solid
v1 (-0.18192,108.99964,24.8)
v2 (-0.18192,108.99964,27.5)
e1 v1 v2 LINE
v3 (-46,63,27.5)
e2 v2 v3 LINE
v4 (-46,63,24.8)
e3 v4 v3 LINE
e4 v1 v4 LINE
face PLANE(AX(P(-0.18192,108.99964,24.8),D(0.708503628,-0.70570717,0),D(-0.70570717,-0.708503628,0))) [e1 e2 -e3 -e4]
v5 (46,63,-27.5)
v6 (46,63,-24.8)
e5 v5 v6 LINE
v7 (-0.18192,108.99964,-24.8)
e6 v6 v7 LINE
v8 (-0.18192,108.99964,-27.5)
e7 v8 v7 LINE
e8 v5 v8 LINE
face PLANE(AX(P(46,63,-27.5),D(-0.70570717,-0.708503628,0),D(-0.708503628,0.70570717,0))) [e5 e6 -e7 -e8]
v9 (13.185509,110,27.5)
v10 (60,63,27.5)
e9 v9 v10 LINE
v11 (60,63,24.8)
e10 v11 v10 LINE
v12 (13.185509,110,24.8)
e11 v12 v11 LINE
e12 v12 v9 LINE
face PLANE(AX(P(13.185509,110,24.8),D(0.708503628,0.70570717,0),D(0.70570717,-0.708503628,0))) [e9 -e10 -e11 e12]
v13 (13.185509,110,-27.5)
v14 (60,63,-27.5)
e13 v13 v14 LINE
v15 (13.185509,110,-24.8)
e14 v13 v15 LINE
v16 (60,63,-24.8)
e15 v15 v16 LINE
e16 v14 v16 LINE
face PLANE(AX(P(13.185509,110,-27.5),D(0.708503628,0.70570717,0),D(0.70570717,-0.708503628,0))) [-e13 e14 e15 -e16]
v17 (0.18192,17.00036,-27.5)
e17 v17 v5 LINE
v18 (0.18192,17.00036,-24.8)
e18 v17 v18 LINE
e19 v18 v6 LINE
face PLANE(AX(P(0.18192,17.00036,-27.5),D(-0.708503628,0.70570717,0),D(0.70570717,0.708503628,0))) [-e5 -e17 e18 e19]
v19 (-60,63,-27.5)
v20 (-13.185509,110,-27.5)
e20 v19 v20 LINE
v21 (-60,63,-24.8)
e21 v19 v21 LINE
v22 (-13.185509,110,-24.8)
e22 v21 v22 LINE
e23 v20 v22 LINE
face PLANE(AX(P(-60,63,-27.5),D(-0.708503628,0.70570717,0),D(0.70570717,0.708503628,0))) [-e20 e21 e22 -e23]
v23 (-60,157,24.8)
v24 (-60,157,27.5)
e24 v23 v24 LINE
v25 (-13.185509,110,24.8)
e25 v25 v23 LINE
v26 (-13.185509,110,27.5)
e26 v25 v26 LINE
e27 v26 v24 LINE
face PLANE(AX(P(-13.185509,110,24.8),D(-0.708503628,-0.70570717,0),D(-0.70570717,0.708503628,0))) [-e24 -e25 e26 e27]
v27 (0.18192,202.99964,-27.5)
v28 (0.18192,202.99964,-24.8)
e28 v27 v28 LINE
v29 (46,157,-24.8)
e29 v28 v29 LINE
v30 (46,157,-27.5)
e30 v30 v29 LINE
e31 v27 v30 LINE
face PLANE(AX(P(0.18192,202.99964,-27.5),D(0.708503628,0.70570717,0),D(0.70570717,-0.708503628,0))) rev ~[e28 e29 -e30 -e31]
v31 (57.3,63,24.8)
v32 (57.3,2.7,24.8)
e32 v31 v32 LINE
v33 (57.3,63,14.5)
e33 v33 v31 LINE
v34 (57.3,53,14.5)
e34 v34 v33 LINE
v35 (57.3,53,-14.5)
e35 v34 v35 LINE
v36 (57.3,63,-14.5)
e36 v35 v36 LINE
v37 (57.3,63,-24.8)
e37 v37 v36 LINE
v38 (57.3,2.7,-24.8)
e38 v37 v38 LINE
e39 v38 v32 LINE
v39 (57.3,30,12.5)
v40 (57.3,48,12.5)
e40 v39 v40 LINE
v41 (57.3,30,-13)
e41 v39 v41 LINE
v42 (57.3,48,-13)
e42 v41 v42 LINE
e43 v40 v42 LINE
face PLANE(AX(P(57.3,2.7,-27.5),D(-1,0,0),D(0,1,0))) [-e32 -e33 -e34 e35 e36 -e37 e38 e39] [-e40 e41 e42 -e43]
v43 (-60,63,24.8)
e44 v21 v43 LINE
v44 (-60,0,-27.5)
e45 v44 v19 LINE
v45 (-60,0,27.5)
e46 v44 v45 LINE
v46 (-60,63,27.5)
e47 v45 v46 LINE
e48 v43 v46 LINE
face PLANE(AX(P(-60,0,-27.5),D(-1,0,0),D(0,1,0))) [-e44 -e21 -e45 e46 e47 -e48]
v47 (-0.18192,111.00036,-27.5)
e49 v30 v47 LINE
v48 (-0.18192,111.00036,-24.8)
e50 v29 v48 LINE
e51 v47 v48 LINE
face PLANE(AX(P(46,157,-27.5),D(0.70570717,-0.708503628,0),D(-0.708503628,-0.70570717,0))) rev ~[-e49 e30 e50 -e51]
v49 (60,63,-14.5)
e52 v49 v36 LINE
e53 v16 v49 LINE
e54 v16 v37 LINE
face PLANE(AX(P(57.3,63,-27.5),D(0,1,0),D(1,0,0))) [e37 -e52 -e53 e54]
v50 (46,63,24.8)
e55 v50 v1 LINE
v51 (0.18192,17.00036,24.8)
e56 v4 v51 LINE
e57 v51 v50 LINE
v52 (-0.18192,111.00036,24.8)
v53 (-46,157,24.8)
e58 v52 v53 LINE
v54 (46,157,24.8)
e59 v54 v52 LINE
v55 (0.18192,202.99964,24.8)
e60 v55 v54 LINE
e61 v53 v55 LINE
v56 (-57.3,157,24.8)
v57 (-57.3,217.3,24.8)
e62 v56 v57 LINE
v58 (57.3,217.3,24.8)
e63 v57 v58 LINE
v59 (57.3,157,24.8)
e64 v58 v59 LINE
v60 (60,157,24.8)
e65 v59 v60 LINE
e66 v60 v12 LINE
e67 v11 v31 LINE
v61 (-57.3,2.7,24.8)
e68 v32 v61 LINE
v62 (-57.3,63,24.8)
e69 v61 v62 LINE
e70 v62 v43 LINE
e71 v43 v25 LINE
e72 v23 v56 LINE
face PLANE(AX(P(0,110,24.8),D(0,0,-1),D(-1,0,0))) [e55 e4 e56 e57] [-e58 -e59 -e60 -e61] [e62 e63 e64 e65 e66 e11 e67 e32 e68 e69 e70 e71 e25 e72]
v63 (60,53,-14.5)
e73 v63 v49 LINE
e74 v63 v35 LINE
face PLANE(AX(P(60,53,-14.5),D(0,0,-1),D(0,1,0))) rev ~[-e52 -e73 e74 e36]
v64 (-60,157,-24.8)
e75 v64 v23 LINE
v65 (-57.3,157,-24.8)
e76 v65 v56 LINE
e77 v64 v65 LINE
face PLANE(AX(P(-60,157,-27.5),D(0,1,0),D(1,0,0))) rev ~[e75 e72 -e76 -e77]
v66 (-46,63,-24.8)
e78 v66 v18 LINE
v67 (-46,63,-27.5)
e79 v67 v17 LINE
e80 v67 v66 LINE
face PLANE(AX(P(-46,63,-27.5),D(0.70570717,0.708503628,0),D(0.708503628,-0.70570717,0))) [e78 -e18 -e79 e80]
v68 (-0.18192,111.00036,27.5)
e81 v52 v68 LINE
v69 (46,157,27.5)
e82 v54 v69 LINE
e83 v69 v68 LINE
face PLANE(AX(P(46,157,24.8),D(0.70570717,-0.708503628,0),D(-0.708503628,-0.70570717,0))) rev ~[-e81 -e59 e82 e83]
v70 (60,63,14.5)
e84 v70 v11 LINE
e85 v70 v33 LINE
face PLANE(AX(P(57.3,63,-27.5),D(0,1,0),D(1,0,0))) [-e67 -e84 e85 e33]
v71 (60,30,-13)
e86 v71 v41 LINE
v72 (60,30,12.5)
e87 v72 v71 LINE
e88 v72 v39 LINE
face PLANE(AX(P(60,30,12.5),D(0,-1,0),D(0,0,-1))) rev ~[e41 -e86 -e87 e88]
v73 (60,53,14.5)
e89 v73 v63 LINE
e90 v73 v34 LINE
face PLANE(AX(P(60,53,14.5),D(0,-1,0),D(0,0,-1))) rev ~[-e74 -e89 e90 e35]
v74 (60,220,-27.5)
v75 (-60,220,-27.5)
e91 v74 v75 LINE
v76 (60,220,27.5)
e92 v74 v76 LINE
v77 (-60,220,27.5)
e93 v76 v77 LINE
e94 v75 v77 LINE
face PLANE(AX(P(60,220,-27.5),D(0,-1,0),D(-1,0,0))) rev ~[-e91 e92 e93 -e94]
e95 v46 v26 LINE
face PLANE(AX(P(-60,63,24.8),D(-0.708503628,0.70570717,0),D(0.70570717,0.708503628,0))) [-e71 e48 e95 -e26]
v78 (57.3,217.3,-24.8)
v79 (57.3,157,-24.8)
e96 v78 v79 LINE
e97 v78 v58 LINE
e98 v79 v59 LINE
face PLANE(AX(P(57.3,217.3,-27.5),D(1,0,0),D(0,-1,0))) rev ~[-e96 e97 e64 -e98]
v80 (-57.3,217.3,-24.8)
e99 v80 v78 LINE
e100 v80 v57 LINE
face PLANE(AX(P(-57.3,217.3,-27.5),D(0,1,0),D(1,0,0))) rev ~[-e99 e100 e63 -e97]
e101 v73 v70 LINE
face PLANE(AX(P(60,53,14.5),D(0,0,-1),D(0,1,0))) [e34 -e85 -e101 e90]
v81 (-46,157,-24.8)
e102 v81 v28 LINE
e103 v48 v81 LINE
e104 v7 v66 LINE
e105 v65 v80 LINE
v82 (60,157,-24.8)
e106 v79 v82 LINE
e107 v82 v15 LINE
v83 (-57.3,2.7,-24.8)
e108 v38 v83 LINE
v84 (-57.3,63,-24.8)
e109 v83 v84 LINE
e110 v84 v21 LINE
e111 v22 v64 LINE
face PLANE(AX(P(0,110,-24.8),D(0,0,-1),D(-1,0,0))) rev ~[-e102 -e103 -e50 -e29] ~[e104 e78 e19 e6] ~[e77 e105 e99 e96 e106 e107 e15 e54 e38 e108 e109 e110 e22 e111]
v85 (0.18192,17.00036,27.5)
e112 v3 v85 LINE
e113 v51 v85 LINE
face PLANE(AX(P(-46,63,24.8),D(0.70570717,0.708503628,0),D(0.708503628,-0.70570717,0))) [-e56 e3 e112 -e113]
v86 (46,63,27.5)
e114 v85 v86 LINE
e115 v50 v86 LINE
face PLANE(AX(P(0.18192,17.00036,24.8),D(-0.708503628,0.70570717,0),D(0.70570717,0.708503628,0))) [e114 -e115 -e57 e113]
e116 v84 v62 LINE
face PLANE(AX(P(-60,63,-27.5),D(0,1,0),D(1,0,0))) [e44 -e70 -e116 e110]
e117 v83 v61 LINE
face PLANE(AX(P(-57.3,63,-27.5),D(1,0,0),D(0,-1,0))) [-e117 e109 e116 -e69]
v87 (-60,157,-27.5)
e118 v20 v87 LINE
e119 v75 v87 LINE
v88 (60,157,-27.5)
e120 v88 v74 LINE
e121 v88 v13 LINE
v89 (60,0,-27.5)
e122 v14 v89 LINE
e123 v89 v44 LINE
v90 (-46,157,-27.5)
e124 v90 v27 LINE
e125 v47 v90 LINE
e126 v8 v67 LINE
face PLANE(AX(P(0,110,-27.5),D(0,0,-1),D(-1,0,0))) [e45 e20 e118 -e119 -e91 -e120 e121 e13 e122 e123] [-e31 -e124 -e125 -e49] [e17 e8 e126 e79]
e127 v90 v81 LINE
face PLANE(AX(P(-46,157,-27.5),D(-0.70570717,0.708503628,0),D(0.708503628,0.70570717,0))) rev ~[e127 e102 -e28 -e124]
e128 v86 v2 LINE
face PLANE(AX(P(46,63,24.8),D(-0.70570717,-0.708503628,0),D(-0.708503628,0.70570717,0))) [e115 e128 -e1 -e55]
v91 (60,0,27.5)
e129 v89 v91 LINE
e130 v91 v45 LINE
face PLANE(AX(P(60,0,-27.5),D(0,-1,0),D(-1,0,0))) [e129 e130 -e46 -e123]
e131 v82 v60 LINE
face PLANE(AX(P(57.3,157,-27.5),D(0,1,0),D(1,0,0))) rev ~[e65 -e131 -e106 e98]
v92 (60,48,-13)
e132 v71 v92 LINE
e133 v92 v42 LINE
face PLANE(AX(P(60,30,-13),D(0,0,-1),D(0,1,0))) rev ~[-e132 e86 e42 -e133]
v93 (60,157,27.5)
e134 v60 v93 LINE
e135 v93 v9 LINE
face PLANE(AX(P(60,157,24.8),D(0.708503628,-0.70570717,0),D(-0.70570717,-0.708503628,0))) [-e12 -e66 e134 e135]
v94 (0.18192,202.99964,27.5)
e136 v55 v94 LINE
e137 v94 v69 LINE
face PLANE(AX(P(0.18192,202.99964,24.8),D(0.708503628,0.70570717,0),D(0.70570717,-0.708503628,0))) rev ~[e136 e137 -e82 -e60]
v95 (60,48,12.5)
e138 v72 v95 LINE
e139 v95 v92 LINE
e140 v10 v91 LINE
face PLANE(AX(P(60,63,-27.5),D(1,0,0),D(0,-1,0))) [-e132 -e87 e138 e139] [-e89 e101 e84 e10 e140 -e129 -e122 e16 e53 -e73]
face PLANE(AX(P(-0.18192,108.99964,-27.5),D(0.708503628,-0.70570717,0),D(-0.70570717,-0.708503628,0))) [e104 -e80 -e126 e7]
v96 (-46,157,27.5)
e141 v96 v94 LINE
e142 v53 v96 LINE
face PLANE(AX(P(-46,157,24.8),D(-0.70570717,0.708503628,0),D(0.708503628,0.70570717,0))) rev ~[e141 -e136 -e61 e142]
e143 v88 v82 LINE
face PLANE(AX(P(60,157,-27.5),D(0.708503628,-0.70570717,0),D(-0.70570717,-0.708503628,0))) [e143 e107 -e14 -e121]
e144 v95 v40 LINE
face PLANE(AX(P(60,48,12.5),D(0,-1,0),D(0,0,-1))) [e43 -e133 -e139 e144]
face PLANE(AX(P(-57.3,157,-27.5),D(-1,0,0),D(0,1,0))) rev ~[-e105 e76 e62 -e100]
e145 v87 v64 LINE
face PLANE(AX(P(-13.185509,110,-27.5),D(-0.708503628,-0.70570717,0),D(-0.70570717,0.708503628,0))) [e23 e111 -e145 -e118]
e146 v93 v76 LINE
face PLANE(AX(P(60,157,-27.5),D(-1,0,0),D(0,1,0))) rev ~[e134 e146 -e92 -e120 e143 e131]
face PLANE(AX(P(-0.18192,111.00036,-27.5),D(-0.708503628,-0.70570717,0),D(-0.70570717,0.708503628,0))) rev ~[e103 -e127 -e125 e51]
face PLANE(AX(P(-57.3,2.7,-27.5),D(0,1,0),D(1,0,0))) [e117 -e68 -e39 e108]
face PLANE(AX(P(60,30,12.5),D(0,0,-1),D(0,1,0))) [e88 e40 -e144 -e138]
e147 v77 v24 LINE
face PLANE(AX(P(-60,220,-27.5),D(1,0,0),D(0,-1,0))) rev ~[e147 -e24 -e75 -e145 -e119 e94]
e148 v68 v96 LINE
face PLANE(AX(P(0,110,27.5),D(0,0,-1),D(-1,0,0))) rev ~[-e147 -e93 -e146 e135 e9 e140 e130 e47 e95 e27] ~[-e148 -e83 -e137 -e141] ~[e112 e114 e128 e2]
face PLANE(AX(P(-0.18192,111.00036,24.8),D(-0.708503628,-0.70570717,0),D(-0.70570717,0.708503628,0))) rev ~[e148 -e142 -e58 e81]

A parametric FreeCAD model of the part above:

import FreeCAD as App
import Part
import Sketcher

V = App.Vector


def add_polygon(sketch, points):
    """Adds a closed chain of lines whose ends are joined by coincident constraints."""
    first, n = sketch.GeometryCount, len(points)
    for a, b in zip(points, points[1:] + points[:1]):
        sketch.addGeometry(Part.LineSegment(App.Vector(*a, 0), App.Vector(*b, 0)), False)
    for i in range(n):
        sketch.addConstraint(Sketcher.Constraint("Coincident", first + i, 2, first + (i + 1) % n, 1))

doc = App.newDocument("Part")
params = doc.addObject("Spreadsheet::Sheet", "Params")
for row, (alias, value) in enumerate([
    ("sketch1_width", "120 mm"),
    ("sketch1_height", "63 mm"),
    ("sketch1_width2", "2.7 mm"),
    ("sketch1_height2", "60.3 mm"),
    ("pad1_length", "55 mm"),
    ("sketch2_width", "120 mm"),
    ("sketch2_height", "63 mm"),
    ("sketch2_width2", "2.7 mm"),
    ("sketch2_height2", "60.3 mm"),
    ("pad2_length", "55 mm"),
    ("sketch3_width", "2.7 mm"),
    ("sketch3_width2", "114.6 mm"),
    ("sketch3_height", "60.3 mm"),
    ("pad3_length", "2.7 mm"),
    ("sketch4_width", "2.7 mm"),
    ("sketch4_width2", "114.6 mm"),
    ("sketch4_height", "60.3 mm"),
    ("pad4_length", "2.7 mm"),
    ("sketch5_width", "18 mm"),
    ("sketch5_width2", "10 mm"),
    ("sketch5_height", "29 mm"),
    ("sketch5_height2", "25.5 mm"),
    ("pocket1_length", "2.7 mm"),
], start=1):
    params.set(f"A{row}", alias)
    params.set(f"B{row}", "=" + value)
    params.setAlias(f"B{row}", alias)

body = doc.addObject("PartDesign::Body", "Body")

# Sketch on XY plane
sketch1 = doc.addObject("Sketcher::SketchObject", "Sketch")
body.addObject(sketch1)
sketch1.AttachmentSupport = (doc.XY_Plane, [""])
sketch1.MapMode = "FlatFace"
sketch1.AttachmentOffset = App.Placement(V(0, 0, -27.5), App.Rotation())
add_polygon(sketch1, [(57.3, 217.3), (57.3, 157), (60, 157), (60, 220), (-60, 220), (-60, 157), (-57.3, 157), (-57.3, 217.3)])  # lines 0-7
sketch1.addConstraint([
    Sketcher.Constraint("Vertical", 0),
    Sketcher.Constraint("Horizontal", 1),
    Sketcher.Constraint("Vertical", 2),
    Sketcher.Constraint("Horizontal", 3),
    Sketcher.Constraint("Vertical", 4),
    Sketcher.Constraint("Horizontal", 5),
    Sketcher.Constraint("Vertical", 6),
    Sketcher.Constraint("Horizontal", 7),
    Sketcher.Constraint("Symmetric", 1, 2, 4, 2, -2),
    Sketcher.Constraint("Equal", 1, 5),
    Sketcher.Constraint("DistanceX", 3, 2, 3, 1, 120.0),
    Sketcher.Constraint("DistanceY", 2, 1, 2, 2, 63.0),
    Sketcher.Constraint("DistanceX", 1, 1, 1, 2, 2.7),
    Sketcher.Constraint("DistanceY", 0, 2, 0, 1, 60.3),
    Sketcher.Constraint("DistanceY", -1, 1, 0, 2, 157.0),
])
sketch1.setExpression("Constraints[18]", "Params.sketch1_width")
sketch1.setExpression("Constraints[19]", "Params.sketch1_height")
sketch1.setExpression("Constraints[20]", "Params.sketch1_width2")
sketch1.setExpression("Constraints[21]", "Params.sketch1_height2")
pad1 = doc.addObject("PartDesign::Pad", "Pad")
body.addObject(pad1)
pad1.Profile = sketch1
pad1.setExpression("Length", "Params.pad1_length")
body2 = doc.addObject("PartDesign::Body", "Body001")

# Sketch on XY plane
sketch2 = doc.addObject("Sketcher::SketchObject", "Sketch001")
body2.addObject(sketch2)
sketch2.AttachmentSupport = (doc.getObject("XY_Plane001"), [""])
sketch2.MapMode = "FlatFace"
sketch2.AttachmentOffset = App.Placement(V(0, 0, -27.5), App.Rotation())
add_polygon(sketch2, [(60, 63), (57.3, 63), (57.3, 2.7), (-57.3, 2.7), (-57.3, 63), (-60, 63), (-60, 0), (60, 0)])  # lines 0-7
sketch2.addConstraint([
    Sketcher.Constraint("Horizontal", 0),
    Sketcher.Constraint("Vertical", 1),
    Sketcher.Constraint("Horizontal", 2),
    Sketcher.Constraint("Vertical", 3),
    Sketcher.Constraint("Horizontal", 4),
    Sketcher.Constraint("Vertical", 5),
    Sketcher.Constraint("Horizontal", 6),
    Sketcher.Constraint("Vertical", 7),
    Sketcher.Constraint("Symmetric", 5, 2, 6, 2, -1, 1),
    Sketcher.Constraint("Symmetric", 0, 2, 3, 2, -2),
    Sketcher.Constraint("DistanceX", 6, 1, 6, 2, 120.0),
    Sketcher.Constraint("DistanceY", 5, 2, 5, 1, 63.0),
    Sketcher.Constraint("DistanceX", 0, 2, 0, 1, 2.7),
    Sketcher.Constraint("DistanceY", 1, 2, 1, 1, 60.3),
])
sketch2.setExpression("Constraints[18]", "Params.sketch2_width")
sketch2.setExpression("Constraints[19]", "Params.sketch2_height")
sketch2.setExpression("Constraints[20]", "Params.sketch2_width2")
sketch2.setExpression("Constraints[21]", "Params.sketch2_height2")
pad2 = doc.addObject("PartDesign::Pad", "Pad001")
body2.addObject(pad2)
pad2.Profile = sketch2
pad2.setExpression("Length", "Params.pad2_length")
body.AllowCompound = True
doc.recompute()

boolean = doc.addObject("PartDesign::Boolean", "Boolean")
body.addObject(boolean)
boolean.Type = "Fuse"
boolean.addObjects([body2])

# Sketch on XY plane
sketch3 = doc.addObject("Sketcher::SketchObject", "Sketch002")
body.addObject(sketch3)
sketch3.AttachmentSupport = (doc.XY_Plane, [""])
sketch3.MapMode = "FlatFace"
sketch3.AttachmentOffset = App.Placement(V(0, 0, -27.5), App.Rotation())
add_polygon(sketch3, [(60, 157), (57.3, 157), (57.3, 217.3), (-57.3, 217.3), (-57.3, 157), (-60, 157), (-13.185509, 110), (-60, 63), (-57.3, 63), (-57.3, 2.7), (57.3, 2.7), (57.3, 63), (60, 63), (13.185509, 110)])  # lines 0-13
add_polygon(sketch3, [(46, 63), (0.18192, 17.00036), (-46, 63), (-0.18192, 108.99964)])  # lines 14-17
add_polygon(sketch3, [(46, 157), (-0.18192, 111.00036), (-46, 157), (0.18192, 202.99964)])  # lines 18-21
sketch3.addConstraint([
    Sketcher.Constraint("Horizontal", 0),
    Sketcher.Constraint("Vertical", 1),
    Sketcher.Constraint("Horizontal", 2),
    Sketcher.Constraint("Vertical", 3),
    Sketcher.Constraint("Horizontal", 4),
    Sketcher.Constraint("Horizontal", 7),
    Sketcher.Constraint("Vertical", 8),
    Sketcher.Constraint("Horizontal", 9),
    Sketcher.Constraint("Vertical", 10),
    Sketcher.Constraint("Horizontal", 11),
    Sketcher.Constraint("Symmetric", 0, 2, 3, 2, -2),
    Sketcher.Constraint("Symmetric", 7, 2, 10, 2, -2),
    Sketcher.Constraint("Symmetric", 5, 2, 12, 2, -2),
    Sketcher.Constraint("Symmetric", 15, 2, 17, 2, -2),
    Sketcher.Constraint("Symmetric", 19, 2, 21, 2, -2),
    Sketcher.Constraint("Parallel", 5, 12),
    Sketcher.Constraint("Parallel", 6, 13),
    Sketcher.Constraint("Parallel", 13, 14),
    Sketcher.Constraint("Perpendicular", 14, 15),
    Sketcher.Constraint("Perpendicular", 15, 16),
    Sketcher.Constraint("Perpendicular", 16, 17),
    Sketcher.Constraint("Perpendicular", 12, 18),
    Sketcher.Constraint("Perpendicular", 18, 19),
    Sketcher.Constraint("Perpendicular", 19, 20),
    Sketcher.Constraint("Perpendicular", 20, 21),
    Sketcher.Constraint("Horizontal", 11, 2, 15, 2),
    Sketcher.Constraint("Horizontal", 13, 2, 19, 2),
    Sketcher.Constraint("Vertical", 4, 2, 6, 2),
    Sketcher.Constraint("Vertical", 3, 2, 7, 2),
    Sketcher.Constraint("Vertical", 11, 2, 13, 2),
    Sketcher.Constraint("Vertical", 15, 2, 19, 2),
    Sketcher.Constraint("Equal", 3, 8),
    Sketcher.Constraint("DistanceX", 0, 2, 0, 1, 2.7),
    Sketcher.Constraint("DistanceX", 2, 2, 2, 1, 114.6),
    Sketcher.Constraint("DistanceY", 1, 1, 1, 2, 60.3),
    Sketcher.Constraint("DistanceY", -1, 1, 0, 2, 157.0),
    Sketcher.Constraint("DistanceY", -1, 1, 5, 2, 110.0),
    Sketcher.Constraint("DistanceX", 15, 2, -1, 1, 46.0),
    Sketcher.Constraint("Distance", 14, 64.92506),
])
sketch3.setExpression("Constraints[54]", "Params.sketch3_width")
sketch3.setExpression("Constraints[55]", "Params.sketch3_width2")
sketch3.setExpression("Constraints[56]", "Params.sketch3_height")
pad3 = doc.addObject("PartDesign::Pad", "Pad002")
body.addObject(pad3)
pad3.Profile = sketch3
pad3.setExpression("Length", "Params.pad3_length")

# Sketch on XY plane
sketch4 = doc.addObject("Sketcher::SketchObject", "Sketch003")
body.addObject(sketch4)
sketch4.AttachmentSupport = (doc.XY_Plane, [""])
sketch4.MapMode = "FlatFace"
sketch4.AttachmentOffset = App.Placement(V(0, 0, 24.8), App.Rotation())
add_polygon(sketch4, [(60, 157), (57.3, 157), (57.3, 217.3), (-57.3, 217.3), (-57.3, 157), (-60, 157), (-13.185509, 110), (-60, 63), (-57.3, 63), (-57.3, 2.7), (57.3, 2.7), (57.3, 63), (60, 63), (13.185509, 110)])  # lines 0-13
add_polygon(sketch4, [(46, 63), (0.18192, 17.00036), (-46, 63), (-0.18192, 108.99964)])  # lines 14-17
add_polygon(sketch4, [(46, 157), (-0.18192, 111.00036), (-46, 157), (0.18192, 202.99964)])  # lines 18-21
sketch4.addConstraint([
    Sketcher.Constraint("Horizontal", 0),
    Sketcher.Constraint("Vertical", 1),
    Sketcher.Constraint("Horizontal", 2),
    Sketcher.Constraint("Vertical", 3),
    Sketcher.Constraint("Horizontal", 4),
    Sketcher.Constraint("Horizontal", 7),
    Sketcher.Constraint("Vertical", 8),
    Sketcher.Constraint("Horizontal", 9),
    Sketcher.Constraint("Vertical", 10),
    Sketcher.Constraint("Horizontal", 11),
    Sketcher.Constraint("Symmetric", 0, 2, 3, 2, -2),
    Sketcher.Constraint("Symmetric", 7, 2, 10, 2, -2),
    Sketcher.Constraint("Symmetric", 5, 2, 12, 2, -2),
    Sketcher.Constraint("Symmetric", 15, 2, 17, 2, -2),
    Sketcher.Constraint("Symmetric", 19, 2, 21, 2, -2),
    Sketcher.Constraint("Parallel", 5, 12),
    Sketcher.Constraint("Parallel", 6, 13),
    Sketcher.Constraint("Parallel", 13, 14),
    Sketcher.Constraint("Perpendicular", 14, 15),
    Sketcher.Constraint("Perpendicular", 15, 16),
    Sketcher.Constraint("Perpendicular", 16, 17),
    Sketcher.Constraint("Perpendicular", 12, 18),
    Sketcher.Constraint("Perpendicular", 18, 19),
    Sketcher.Constraint("Perpendicular", 19, 20),
    Sketcher.Constraint("Perpendicular", 20, 21),
    Sketcher.Constraint("Horizontal", 11, 2, 15, 2),
    Sketcher.Constraint("Horizontal", 13, 2, 19, 2),
    Sketcher.Constraint("Vertical", 4, 2, 6, 2),
    Sketcher.Constraint("Vertical", 3, 2, 7, 2),
    Sketcher.Constraint("Vertical", 11, 2, 13, 2),
    Sketcher.Constraint("Vertical", 15, 2, 19, 2),
    Sketcher.Constraint("Equal", 3, 8),
    Sketcher.Constraint("DistanceX", 0, 2, 0, 1, 2.7),
    Sketcher.Constraint("DistanceX", 2, 2, 2, 1, 114.6),
    Sketcher.Constraint("DistanceY", 1, 1, 1, 2, 60.3),
    Sketcher.Constraint("DistanceY", -1, 1, 0, 2, 157.0),
    Sketcher.Constraint("DistanceY", -1, 1, 5, 2, 110.0),
    Sketcher.Constraint("DistanceX", 15, 2, -1, 1, 46.0),
    Sketcher.Constraint("Distance", 14, 64.92506),
])
sketch4.setExpression("Constraints[54]", "Params.sketch4_width")
sketch4.setExpression("Constraints[55]", "Params.sketch4_width2")
sketch4.setExpression("Constraints[56]", "Params.sketch4_height")
pad4 = doc.addObject("PartDesign::Pad", "Pad003")
body.addObject(pad4)
pad4.Profile = sketch4
pad4.setExpression("Length", "Params.pad4_length")

# Sketch on YZ plane
sketch5 = doc.addObject("Sketcher::SketchObject", "Sketch004")
body.addObject(sketch5)
sketch5.AttachmentSupport = (doc.YZ_Plane, [""])
sketch5.MapMode = "FlatFace"
sketch5.AttachmentOffset = App.Placement(V(0, 0, 60), App.Rotation())
add_polygon(sketch5, [(48, 12.5), (30, 12.5), (30, -13), (48, -13)])  # lines 0-3
add_polygon(sketch5, [(63, 14.5), (53, 14.5), (53, -14.5), (63, -14.5)])  # lines 4-7
sketch5.addConstraint([
    Sketcher.Constraint("Horizontal", 0),
    Sketcher.Constraint("Vertical", 1),
    Sketcher.Constraint("Horizontal", 2),
    Sketcher.Constraint("Vertical", 3),
    Sketcher.Constraint("Horizontal", 4),
    Sketcher.Constraint("Vertical", 5),
    Sketcher.Constraint("Horizontal", 6),
    Sketcher.Constraint("Vertical", 7),
    Sketcher.Constraint("DistanceX", 0, 2, 0, 1, 18.0),
    Sketcher.Constraint("DistanceX", 4, 2, 4, 1, 10.0),
    Sketcher.Constraint("DistanceY", 5, 2, 5, 1, 29.0),
    Sketcher.Constraint("DistanceY", 1, 2, 1, 1, 25.5),
    Sketcher.Constraint("DistanceX", -1, 1, 0, 2, 30.0),
    Sketcher.Constraint("DistanceY", 1, 2, -1, 1, 13.0),
    Sketcher.Constraint("DistanceX", -1, 1, 4, 2, 53.0),
    Sketcher.Constraint("DistanceY", 3, 2, 4, 2, 2.0),
])
sketch5.setExpression("Constraints[16]", "Params.sketch5_width")
sketch5.setExpression("Constraints[17]", "Params.sketch5_width2")
sketch5.setExpression("Constraints[18]", "Params.sketch5_height")
sketch5.setExpression("Constraints[19]", "Params.sketch5_height2")
pocket1 = doc.addObject("PartDesign::Pocket", "Pocket")
body.addObject(pocket1)
pocket1.Profile = sketch5
pocket1.setExpression("Length", "Params.pocket1_length")

doc.recompute()
